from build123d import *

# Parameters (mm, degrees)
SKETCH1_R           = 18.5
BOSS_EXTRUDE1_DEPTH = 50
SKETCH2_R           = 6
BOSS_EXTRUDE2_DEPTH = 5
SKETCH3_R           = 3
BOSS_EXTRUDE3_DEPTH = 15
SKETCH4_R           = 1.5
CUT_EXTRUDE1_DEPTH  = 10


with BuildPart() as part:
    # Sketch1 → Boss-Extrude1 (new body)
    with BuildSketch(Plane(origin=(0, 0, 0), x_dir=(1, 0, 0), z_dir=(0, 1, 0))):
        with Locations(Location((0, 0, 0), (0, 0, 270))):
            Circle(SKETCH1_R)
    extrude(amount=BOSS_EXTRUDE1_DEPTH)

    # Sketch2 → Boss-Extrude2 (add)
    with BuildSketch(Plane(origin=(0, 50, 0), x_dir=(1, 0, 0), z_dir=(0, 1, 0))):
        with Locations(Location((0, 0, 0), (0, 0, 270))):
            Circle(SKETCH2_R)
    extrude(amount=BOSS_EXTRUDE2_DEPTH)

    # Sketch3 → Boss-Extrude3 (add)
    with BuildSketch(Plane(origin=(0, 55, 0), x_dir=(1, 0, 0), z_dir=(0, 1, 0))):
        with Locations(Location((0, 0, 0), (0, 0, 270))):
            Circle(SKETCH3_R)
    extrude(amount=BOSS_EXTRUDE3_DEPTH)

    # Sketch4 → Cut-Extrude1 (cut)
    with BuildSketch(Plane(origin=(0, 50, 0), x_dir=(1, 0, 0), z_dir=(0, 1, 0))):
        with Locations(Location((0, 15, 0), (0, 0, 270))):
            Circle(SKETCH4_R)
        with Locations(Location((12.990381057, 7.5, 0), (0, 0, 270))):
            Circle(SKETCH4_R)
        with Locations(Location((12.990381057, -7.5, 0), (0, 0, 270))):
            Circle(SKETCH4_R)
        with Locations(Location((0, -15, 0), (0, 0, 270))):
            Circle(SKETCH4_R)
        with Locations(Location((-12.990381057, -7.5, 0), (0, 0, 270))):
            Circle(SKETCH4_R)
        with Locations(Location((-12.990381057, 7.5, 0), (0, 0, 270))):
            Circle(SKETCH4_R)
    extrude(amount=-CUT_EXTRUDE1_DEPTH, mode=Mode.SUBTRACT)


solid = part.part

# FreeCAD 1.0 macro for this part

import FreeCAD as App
import Part
import Sketcher

doc = App.newDocument("Part")
body = doc.addObject("PartDesign::Body", "Body")

# Sketch on XZ plane
sketch1 = body.newObject("Sketcher::SketchObject", "Sketch")
sketch1.AttachmentSupport = (doc.getObject("XZ_Plane"), [""])
sketch1.MapMode = "FlatFace"
sketch1.addGeometry(Part.Circle(App.Vector(0, 0, 0), App.Vector(0, 0, 1), 18.5), False)
sketch1.addConstraint(Sketcher.Constraint("Coincident", 0, 3, -1, 1))
sketch1.addConstraint(Sketcher.Constraint("Diameter", 0, 37.0))
pad1 = body.newObject("PartDesign::Pad", "Pad")
pad1.Profile = sketch1
pad1.Length = 50
pad1.Reversed = True

# Sketch on XZ plane
sketch2 = body.newObject("Sketcher::SketchObject", "Sketch001")
sketch2.AttachmentSupport = (doc.getObject("XZ_Plane"), [""])
sketch2.MapMode = "FlatFace"
sketch2.AttachmentOffset = App.Placement(App.Vector(0, 0, -50), App.Rotation())
sketch2.addGeometry(Part.Circle(App.Vector(0, 0, 0), App.Vector(0, 0, 1), 6), False)
sketch2.addConstraint(Sketcher.Constraint("Coincident", 0, 3, -1, 1))
sketch2.addConstraint(Sketcher.Constraint("Diameter", 0, 12.0))
pad2 = body.newObject("PartDesign::Pad", "Pad001")
pad2.Profile = sketch2
pad2.Length = 5
pad2.Reversed = True

# Sketch on XZ plane
sketch3 = body.newObject("Sketcher::SketchObject", "Sketch002")
sketch3.AttachmentSupport = (doc.getObject("XZ_Plane"), [""])
sketch3.MapMode = "FlatFace"
sketch3.AttachmentOffset = App.Placement(App.Vector(0, 0, -55), App.Rotation())
sketch3.addGeometry(Part.Circle(App.Vector(0, 0, 0), App.Vector(0, 0, 1), 3), False)
sketch3.addConstraint(Sketcher.Constraint("Coincident", 0, 3, -1, 1))
sketch3.addConstraint(Sketcher.Constraint("Diameter", 0, 6.0))
pad3 = body.newObject("PartDesign::Pad", "Pad002")
pad3.Profile = sketch3
pad3.Length = 15
pad3.Reversed = True

# Sketch on XZ plane
sketch4 = body.newObject("Sketcher::SketchObject", "Sketch003")
sketch4.AttachmentSupport = (doc.getObject("XZ_Plane"), [""])
sketch4.MapMode = "FlatFace"
sketch4.AttachmentOffset = App.Placement(App.Vector(0, 0, -50), App.Rotation())
sketch4.addGeometry(Part.Circle(App.Vector(0, -15, 0), App.Vector(0, 0, 1), 1.5), False)
sketch4.addGeometry(Part.Circle(App.Vector(12.990381, -7.5, 0), App.Vector(0, 0, 1), 1.5), False)
sketch4.addGeometry(Part.Circle(App.Vector(12.990381, 7.5, 0), App.Vector(0, 0, 1), 1.5), False)
sketch4.addGeometry(Part.Circle(App.Vector(0, 15, 0), App.Vector(0, 0, 1), 1.5), False)
sketch4.addGeometry(Part.Circle(App.Vector(-12.990381, 7.5, 0), App.Vector(0, 0, 1), 1.5), False)
sketch4.addGeometry(Part.Circle(App.Vector(-12.990381, -7.5, 0), App.Vector(0, 0, 1), 1.5), False)
sketch4.addConstraint(Sketcher.Constraint("Equal", 0, 1))
sketch4.addConstraint(Sketcher.Constraint("Equal", 1, 2))
sketch4.addConstraint(Sketcher.Constraint("Equal", 2, 3))
sketch4.addConstraint(Sketcher.Constraint("Equal", 3, 4))
sketch4.addConstraint(Sketcher.Constraint("Equal", 4, 5))
sketch4.addConstraint(Sketcher.Constraint("Symmetric", 0, 3, 3, 3, -1, 1))
sketch4.addConstraint(Sketcher.Constraint("Symmetric", 1, 3, 4, 3, -1, 1))
sketch4.addConstraint(Sketcher.Constraint("Symmetric", 2, 3, 5, 3, -1, 1))
sketch4.addConstraint(Sketcher.Constraint("Symmetric", 2, 3, 4, 3, -2))
sketch4.addConstraint(Sketcher.Constraint("PointOnObject", 0, 3, -2))
sketch4.addConstraint(Sketcher.Constraint("Diameter", 0, 3.0))
sketch4.addConstraint(Sketcher.Constraint("DistanceY", 0, 3, -1, 1, 15.0))
sketch4.addConstraint(Sketcher.Constraint("DistanceY", 1, 3, 2, 3, 15.0))
sketch4.addConstraint(Sketcher.Constraint("DistanceX", -1, 1, 1, 3, 12.990381))
pocket1 = body.newObject("PartDesign::Pocket", "Pocket")
pocket1.Profile = sketch4
pocket1.Length = 10
pocket1.Reversed = True

doc.recompute()
